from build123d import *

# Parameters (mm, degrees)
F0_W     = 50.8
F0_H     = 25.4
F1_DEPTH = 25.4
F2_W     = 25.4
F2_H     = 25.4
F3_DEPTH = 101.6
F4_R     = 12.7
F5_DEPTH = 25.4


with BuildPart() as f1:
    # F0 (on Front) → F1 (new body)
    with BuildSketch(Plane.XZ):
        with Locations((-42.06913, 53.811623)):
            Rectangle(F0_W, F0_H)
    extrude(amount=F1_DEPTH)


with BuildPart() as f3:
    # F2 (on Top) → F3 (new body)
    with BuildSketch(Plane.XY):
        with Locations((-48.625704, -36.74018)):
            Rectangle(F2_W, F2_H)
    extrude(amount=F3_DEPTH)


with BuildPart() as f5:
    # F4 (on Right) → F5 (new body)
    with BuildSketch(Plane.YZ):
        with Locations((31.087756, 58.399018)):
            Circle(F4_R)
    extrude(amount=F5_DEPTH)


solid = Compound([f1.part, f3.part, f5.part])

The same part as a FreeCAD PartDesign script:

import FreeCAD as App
import Part
import Sketcher
from FreeCAD import Vector
Q = App.Units.Quantity


def add_polygon(sketch, points):
    """Adds a closed chain of lines whose ends are joined by coincident constraints."""
    first, n = sketch.GeometryCount, len(points)
    for a, b in zip(points, points[1:] + points[:1]):
        sketch.addGeometry(Part.LineSegment(App.Vector(*a, 0), App.Vector(*b, 0)), False)
    for i in range(n):
        sketch.addConstraint(Sketcher.Constraint("Coincident", first + i, 2, first + (i + 1) % n, 1))

doc = App.newDocument("Part")
body = doc.addObject("PartDesign::Body", "Body")

sketch1 = body.newObject("Sketcher::SketchObject", "Sketch")
sketch1.AttachmentSupport = (doc.getObject("XZ_Plane"), [""])
sketch1.MapMode = "FlatFace"
add_polygon(sketch1, [(-67, 67), (-67, 41), (-17, 41), (-17, 67)])
sketch1.addConstraint(Sketcher.Constraint("Vertical", 0))
sketch1.addConstraint(Sketcher.Constraint("Horizontal", 1))
sketch1.addConstraint(Sketcher.Constraint("Vertical", 2))
sketch1.addConstraint(Sketcher.Constraint("Horizontal", 3))
sketch1.addConstraint(Sketcher.Constraint("DistanceX", 1, 1, 1, 2, Q("2 in")))
sketch1.addConstraint(Sketcher.Constraint("DistanceY", 0, 2, 0, 1, Q("1 in")))
sketch1.addConstraint(Sketcher.Constraint("DistanceX", 0, 2, -1, 1, Q("67.46913 mm")))
sketch1.addConstraint(Sketcher.Constraint("DistanceY", -1, 1, 0, 2, Q("41.111623 mm")))
pad1 = body.newObject("PartDesign::Pad", "Pad")
pad1.Profile = sketch1
pad1.Length = Q("1 in")
body2 = doc.addObject("PartDesign::Body", "Body001")

sketch2 = body2.newObject("Sketcher::SketchObject", "Sketch001")
sketch2.AttachmentSupport = (doc.getObject("XY_Plane001"), [""])
sketch2.MapMode = "FlatFace"
add_polygon(sketch2, [(-61, -24), (-61, -49), (-36, -49), (-36, -24)])
sketch2.addConstraint(Sketcher.Constraint("Vertical", 0))
sketch2.addConstraint(Sketcher.Constraint("Horizontal", 1))
sketch2.addConstraint(Sketcher.Constraint("Vertical", 2))
sketch2.addConstraint(Sketcher.Constraint("Horizontal", 3))
sketch2.addConstraint(Sketcher.Constraint("Equal", 3, 0))
sketch2.addConstraint(Sketcher.Constraint("DistanceX", 1, 1, 1, 2, Q("1 in")))
sketch2.addConstraint(Sketcher.Constraint("DistanceY", 0, 2, -1, 1, Q("49.44018 mm")))
sketch2.addConstraint(Sketcher.Constraint("DistanceX", 0, 2, -1, 1, Q("61.325704 mm")))
pad2 = body2.newObject("PartDesign::Pad", "Pad001")
pad2.Profile = sketch2
pad2.Length = Q("4 in")
body3 = doc.addObject("PartDesign::Body", "Body002")

sketch3 = body3.newObject("Sketcher::SketchObject", "Sketch002")
sketch3.AttachmentSupport = (doc.getObject("YZ_Plane002"), [""])
sketch3.MapMode = "FlatFace"
sketch3.addGeometry(Part.Circle(Vector(31, 58, 0), Vector(0, 0, 1), 13), False)
sketch3.addConstraint(Sketcher.Constraint("Diameter", 0, Q("1 in")))
sketch3.addConstraint(Sketcher.Constraint("DistanceX", -1, 1, 0, 3, Q("31.087756 mm")))
sketch3.addConstraint(Sketcher.Constraint("DistanceY", -1, 1, 0, 3, Q("58.399018 mm")))
pad3 = body3.newObject("PartDesign::Pad", "Pad002")
pad3.Profile = sketch3
pad3.Length = Q("1 in")

doc.recompute()
